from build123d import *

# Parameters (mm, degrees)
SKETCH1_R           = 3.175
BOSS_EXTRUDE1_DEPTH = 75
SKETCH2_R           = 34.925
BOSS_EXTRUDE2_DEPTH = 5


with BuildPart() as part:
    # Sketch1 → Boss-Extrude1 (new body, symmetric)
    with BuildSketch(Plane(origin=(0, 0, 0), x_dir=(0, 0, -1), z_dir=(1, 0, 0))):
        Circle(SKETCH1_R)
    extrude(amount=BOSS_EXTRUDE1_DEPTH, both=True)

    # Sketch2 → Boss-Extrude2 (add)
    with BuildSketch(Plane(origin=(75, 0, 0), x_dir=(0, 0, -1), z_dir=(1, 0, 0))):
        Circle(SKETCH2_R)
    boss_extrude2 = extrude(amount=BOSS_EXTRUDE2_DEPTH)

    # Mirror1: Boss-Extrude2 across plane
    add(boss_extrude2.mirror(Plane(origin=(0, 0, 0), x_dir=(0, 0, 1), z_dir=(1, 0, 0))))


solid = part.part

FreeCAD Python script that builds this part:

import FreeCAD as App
import Part
import Sketcher
Q = App.Units.Quantity

doc = App.newDocument("Part")
body = doc.addObject("PartDesign::Body", "Body")

sketch1 = body.newObject("Sketcher::SketchObject", "Sketch")
sketch1.AttachmentSupport = (doc.getObject("YZ_Plane"), [""])
sketch1.MapMode = "FlatFace"
sketch1.addGeometry(Part.Circle(App.Vector(0, 0, 0), App.Vector(0, 0, 1), 3.2), False)
sketch1.addConstraint(Sketcher.Constraint("Coincident", 0, 3, -1, 1))
sketch1.addConstraint(Sketcher.Constraint("Diameter", 0, Q("6.35 mm")))
pad1 = body.newObject("PartDesign::Pad", "Pad")
pad1.Profile = sketch1
pad1.Length = 150
pad1.Midplane = True

sketch2 = body.newObject("Sketcher::SketchObject", "Sketch001")
sketch2.AttachmentSupport = (doc.getObject("YZ_Plane"), [""])
sketch2.MapMode = "FlatFace"
sketch2.AttachmentOffset = App.Placement(App.Vector(0, 0, 75), App.Rotation())
sketch2.addGeometry(Part.Circle(App.Vector(0, 0, 0), App.Vector(0, 0, 1), 35), False)
sketch2.addConstraint(Sketcher.Constraint("Coincident", 0, 3, -1, 1))
sketch2.addConstraint(Sketcher.Constraint("Diameter", 0, Q("69.85 mm")))
pad2 = body.newObject("PartDesign::Pad", "Pad001")
pad2.Profile = sketch2
pad2.Length = 5
doc.recompute()

mirrored = body.newObject("PartDesign::Mirrored", "Mirrored")
mirrored.Originals = [pad2]
mirrored.MirrorPlane = (doc.getObject("YZ_Plane"), [""])
body.Tip = mirrored

doc.recompute()
